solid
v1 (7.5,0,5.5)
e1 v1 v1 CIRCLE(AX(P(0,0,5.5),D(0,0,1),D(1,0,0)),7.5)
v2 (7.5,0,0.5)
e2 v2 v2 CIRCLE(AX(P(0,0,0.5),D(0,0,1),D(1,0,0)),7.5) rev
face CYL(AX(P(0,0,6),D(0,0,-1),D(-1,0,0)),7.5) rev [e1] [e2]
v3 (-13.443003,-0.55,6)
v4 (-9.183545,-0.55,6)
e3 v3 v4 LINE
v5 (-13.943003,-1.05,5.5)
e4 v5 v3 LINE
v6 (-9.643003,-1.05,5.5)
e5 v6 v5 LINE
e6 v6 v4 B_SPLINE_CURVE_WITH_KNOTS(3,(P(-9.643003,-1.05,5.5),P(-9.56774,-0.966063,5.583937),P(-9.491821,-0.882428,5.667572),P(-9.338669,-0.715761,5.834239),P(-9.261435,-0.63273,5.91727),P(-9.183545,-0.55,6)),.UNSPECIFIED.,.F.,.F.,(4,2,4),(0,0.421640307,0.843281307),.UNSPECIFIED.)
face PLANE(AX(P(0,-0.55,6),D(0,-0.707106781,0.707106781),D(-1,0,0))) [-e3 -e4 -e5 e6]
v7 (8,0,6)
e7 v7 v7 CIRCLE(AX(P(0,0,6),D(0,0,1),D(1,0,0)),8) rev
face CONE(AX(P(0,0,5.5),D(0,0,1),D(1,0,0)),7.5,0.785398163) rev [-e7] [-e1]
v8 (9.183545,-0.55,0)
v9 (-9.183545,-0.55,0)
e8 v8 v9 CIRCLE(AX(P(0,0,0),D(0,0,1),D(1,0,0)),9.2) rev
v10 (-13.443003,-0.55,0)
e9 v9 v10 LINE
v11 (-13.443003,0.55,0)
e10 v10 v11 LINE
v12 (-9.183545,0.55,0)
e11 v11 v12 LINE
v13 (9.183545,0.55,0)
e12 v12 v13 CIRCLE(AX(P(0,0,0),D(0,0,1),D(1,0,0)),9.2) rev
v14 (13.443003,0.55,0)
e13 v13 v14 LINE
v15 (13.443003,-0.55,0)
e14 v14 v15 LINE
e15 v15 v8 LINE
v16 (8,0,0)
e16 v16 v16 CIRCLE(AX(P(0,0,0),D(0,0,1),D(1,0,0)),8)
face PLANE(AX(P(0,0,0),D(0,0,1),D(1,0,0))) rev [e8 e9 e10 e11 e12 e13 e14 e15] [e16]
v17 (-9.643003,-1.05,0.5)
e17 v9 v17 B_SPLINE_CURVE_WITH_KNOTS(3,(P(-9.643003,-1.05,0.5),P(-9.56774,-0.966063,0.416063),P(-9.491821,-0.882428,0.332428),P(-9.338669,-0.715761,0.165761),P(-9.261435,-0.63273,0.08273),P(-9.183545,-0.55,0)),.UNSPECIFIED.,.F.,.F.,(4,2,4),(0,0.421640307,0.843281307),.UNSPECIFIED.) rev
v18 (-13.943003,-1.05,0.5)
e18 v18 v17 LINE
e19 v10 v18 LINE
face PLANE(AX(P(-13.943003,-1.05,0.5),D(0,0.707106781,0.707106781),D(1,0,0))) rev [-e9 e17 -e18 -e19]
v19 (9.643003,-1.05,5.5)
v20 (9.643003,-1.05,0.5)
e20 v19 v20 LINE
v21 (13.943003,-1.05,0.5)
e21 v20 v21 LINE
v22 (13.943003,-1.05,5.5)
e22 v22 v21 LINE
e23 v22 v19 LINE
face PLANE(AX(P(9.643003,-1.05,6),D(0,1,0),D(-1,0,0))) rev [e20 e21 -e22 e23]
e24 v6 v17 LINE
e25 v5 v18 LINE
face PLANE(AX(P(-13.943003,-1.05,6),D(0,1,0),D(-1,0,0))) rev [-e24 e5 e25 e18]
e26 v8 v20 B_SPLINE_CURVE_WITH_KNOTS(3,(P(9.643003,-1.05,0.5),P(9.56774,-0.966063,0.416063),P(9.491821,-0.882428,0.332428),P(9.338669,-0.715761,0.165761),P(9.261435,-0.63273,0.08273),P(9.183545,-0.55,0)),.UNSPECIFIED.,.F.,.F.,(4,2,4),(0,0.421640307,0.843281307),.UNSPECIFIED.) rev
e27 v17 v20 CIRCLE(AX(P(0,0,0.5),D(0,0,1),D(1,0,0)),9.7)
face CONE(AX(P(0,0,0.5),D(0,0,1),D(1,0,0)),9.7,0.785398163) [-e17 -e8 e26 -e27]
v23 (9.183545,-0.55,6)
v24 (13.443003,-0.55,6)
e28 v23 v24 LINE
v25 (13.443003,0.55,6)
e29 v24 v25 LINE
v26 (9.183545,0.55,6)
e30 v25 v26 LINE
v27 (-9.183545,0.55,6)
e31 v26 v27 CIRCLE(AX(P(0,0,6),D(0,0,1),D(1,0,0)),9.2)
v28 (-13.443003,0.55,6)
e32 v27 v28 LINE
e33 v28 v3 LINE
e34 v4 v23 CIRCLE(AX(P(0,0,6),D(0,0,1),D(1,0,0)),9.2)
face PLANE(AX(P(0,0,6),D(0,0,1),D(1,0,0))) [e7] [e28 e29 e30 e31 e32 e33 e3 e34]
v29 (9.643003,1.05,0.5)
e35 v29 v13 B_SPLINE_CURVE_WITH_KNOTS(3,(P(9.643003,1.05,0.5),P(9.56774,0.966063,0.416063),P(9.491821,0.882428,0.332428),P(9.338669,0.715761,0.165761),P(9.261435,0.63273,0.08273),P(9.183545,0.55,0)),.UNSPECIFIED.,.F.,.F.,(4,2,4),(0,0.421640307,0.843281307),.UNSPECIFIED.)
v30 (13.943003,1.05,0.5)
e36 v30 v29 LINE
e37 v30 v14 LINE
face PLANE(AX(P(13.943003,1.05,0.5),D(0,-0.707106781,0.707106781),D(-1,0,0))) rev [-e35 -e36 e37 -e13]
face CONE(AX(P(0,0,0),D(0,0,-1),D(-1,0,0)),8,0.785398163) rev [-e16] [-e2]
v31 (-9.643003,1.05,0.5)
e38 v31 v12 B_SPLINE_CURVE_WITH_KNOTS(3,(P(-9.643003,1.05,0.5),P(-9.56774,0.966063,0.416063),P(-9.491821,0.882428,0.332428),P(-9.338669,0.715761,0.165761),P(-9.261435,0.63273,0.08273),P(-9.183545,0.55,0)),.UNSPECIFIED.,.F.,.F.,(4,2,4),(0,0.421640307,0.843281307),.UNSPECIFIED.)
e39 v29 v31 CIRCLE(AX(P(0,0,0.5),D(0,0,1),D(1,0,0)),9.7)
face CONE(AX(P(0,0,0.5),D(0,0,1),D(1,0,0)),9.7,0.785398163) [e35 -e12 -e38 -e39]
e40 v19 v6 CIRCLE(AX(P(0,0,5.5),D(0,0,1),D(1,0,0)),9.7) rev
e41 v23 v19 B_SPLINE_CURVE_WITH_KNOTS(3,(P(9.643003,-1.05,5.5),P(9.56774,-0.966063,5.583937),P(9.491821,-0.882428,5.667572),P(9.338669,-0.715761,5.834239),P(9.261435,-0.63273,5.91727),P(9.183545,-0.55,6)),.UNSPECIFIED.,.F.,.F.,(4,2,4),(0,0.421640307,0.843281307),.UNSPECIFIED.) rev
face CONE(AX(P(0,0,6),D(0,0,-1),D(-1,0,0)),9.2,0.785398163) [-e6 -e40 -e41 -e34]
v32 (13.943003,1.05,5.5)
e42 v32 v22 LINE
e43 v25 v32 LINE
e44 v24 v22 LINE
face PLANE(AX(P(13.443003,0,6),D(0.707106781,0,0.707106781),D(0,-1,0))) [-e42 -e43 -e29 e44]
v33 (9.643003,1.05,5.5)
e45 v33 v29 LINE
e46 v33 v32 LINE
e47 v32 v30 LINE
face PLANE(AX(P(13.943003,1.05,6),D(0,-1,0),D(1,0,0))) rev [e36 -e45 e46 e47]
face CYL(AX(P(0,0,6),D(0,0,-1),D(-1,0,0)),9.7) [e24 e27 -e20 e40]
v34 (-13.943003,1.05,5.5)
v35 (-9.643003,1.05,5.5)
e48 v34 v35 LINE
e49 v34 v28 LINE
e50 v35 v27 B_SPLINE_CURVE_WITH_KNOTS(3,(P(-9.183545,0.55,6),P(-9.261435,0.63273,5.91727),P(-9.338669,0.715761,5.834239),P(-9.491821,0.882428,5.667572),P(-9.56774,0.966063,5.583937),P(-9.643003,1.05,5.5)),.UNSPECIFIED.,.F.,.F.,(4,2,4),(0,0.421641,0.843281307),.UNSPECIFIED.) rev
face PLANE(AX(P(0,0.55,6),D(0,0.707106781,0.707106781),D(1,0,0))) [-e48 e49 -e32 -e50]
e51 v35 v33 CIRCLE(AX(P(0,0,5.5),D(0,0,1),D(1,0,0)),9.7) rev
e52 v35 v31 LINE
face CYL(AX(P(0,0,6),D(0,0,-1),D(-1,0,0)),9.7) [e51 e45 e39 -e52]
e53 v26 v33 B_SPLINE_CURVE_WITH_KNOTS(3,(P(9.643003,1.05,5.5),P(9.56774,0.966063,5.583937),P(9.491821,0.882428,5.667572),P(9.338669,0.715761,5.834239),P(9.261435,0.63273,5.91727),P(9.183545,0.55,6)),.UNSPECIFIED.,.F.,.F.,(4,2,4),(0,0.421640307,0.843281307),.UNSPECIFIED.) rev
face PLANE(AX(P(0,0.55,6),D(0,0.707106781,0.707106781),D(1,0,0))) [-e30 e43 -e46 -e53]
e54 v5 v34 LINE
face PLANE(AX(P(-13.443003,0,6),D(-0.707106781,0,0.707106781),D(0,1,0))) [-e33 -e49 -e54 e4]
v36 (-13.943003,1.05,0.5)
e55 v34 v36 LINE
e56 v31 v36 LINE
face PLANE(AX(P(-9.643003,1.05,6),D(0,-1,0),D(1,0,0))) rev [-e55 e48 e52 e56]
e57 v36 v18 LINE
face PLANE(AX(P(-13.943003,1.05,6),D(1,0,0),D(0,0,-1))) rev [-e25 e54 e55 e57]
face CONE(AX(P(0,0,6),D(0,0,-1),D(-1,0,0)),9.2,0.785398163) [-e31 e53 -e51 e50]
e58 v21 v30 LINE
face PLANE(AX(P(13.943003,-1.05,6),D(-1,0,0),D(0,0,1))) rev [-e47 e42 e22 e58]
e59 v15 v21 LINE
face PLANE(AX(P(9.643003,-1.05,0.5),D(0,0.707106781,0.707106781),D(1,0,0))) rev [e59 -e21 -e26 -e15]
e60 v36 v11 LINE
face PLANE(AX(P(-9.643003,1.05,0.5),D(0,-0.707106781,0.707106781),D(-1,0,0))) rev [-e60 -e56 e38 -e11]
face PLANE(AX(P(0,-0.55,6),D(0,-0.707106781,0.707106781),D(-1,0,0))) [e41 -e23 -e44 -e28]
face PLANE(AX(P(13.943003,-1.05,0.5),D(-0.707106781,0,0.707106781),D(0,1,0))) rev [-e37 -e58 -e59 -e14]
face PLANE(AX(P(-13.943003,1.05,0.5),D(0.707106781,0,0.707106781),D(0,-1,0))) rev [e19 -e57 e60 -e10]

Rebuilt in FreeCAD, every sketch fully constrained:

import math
import FreeCAD as App
import Part
import Sketcher
from FreeCAD import Vector
Q = App.Units.Quantity


def edges_at(feature, points):
    """Names of the edges that pass closest to the given points."""
    edges = feature.Shape.Edges
    near = lambda p: min(range(len(edges)), key=lambda i: edges[i].distToShape(Part.Vertex(*p))[0])
    return sorted({f"Edge{near(p) + 1}" for p in points})

doc = App.newDocument("Part")
body = doc.addObject("PartDesign::Body", "Body")

# Sketch on XY plane
sketch1 = body.newObject("Sketcher::SketchObject", "Sketch")
sketch1.AttachmentSupport = (doc.getObject("XY_Plane"), [""])
sketch1.MapMode = "FlatFace"
sketch1.addGeometry([
    Part.LineSegment(Vector(9.6, -1.1, 0), Vector(13.9, -1.1, 0)),  # 0
    Part.LineSegment(Vector(13.9, -1.1, 0), Vector(13.9, 1.1, 0)),  # 1
    Part.LineSegment(Vector(13.9, 1.1, 0), Vector(9.6, 1.1, 0)),  # 2
    Part.ArcOfCircle(Part.Circle(Vector(0, 0, 0), Vector(0, 0, 1), 9.7), math.radians(6), math.radians(174)),  # 3
    Part.LineSegment(Vector(-9.6, 1.1, 0), Vector(-13.9, 1.1, 0)),  # 4
    Part.LineSegment(Vector(-13.9, 1.1, 0), Vector(-13.9, -1.1, 0)),  # 5
    Part.LineSegment(Vector(-13.9, -1.1, 0), Vector(-9.6, -1.1, 0)),  # 6
    Part.ArcOfCircle(Part.Circle(Vector(0, 0, 0), Vector(0, 0, 1), 9.7), math.radians(-174), math.radians(-6)),  # 7
    Part.Circle(Vector(0, 0, 0), Vector(0, 0, 1), 7.5),  # 8
], False)
sketch1.addConstraint([
    Sketcher.Constraint("Coincident", 0, 2, 1, 1),
    Sketcher.Constraint("Coincident", 1, 2, 2, 1),
    Sketcher.Constraint("Coincident", 2, 2, 3, 1),
    Sketcher.Constraint("Coincident", 3, 2, 4, 1),
    Sketcher.Constraint("Coincident", 4, 2, 5, 1),
    Sketcher.Constraint("Coincident", 5, 2, 6, 1),
    Sketcher.Constraint("Coincident", 6, 2, 7, 1),
    Sketcher.Constraint("Coincident", 7, 2, 0, 1),
    Sketcher.Constraint("Horizontal", 0),
    Sketcher.Constraint("Vertical", 1),
    Sketcher.Constraint("Horizontal", 2),
    Sketcher.Constraint("Horizontal", 4),
    Sketcher.Constraint("Vertical", 5),
    Sketcher.Constraint("Horizontal", 6),
    Sketcher.Constraint("Coincident", 3, 3, -1, 1),
    Sketcher.Constraint("Coincident", 7, 3, -1, 1),
    Sketcher.Constraint("Coincident", 8, 3, -1, 1),
    Sketcher.Constraint("Equal", 3, 7),
    Sketcher.Constraint("Symmetric", 0, 2, 4, 2, -1, 1),
    Sketcher.Constraint("Horizontal", 2, 2, 3, 2),
    Sketcher.Constraint("Horizontal", 0, 2, 5, 2),
    Sketcher.Constraint("Diameter", 8, Q("15 mm")),
    Sketcher.Constraint("Radius", 3, Q("9.7 mm")),
    Sketcher.Constraint("DistanceX", 0, 1, 0, 2, Q("4.3 mm")),
    Sketcher.Constraint("DistanceY", 1, 1, 1, 2, Q("2.1 mm")),
])
pad1 = body.newObject("PartDesign::Pad", "Pad")
pad1.Profile = sketch1
pad1.Length = 6
doc.recompute()

chamfer = body.newObject("PartDesign::Chamfer", "Chamfer")
chamfer.Base = (pad1, edges_at(pad1, [
    (0, -9.7, 0),
    (-11.793, -1.05, 0),
    (-13.943, 0, 0),
    (-11.793, 1.05, 0),
    (-11.793, -1.05, 6),
    (0, -9.7, 6),
    (11.793, -1.05, 6),
    (-7.5, 0, 0),
    (-7.5, 0, 6),
    (13.943, 0, 6),
    (11.793, 1.05, 6),
    (0, 9.7, 6),
    (-11.793, 1.05, 6),
    (0, 9.7, 0),
    (-13.943, 0, 6),
    (11.793, 1.05, 0),
    (13.943, 0, 0),
    (11.793, -1.05, 0),
]))
chamfer.Size = 0.5

doc.recompute()
